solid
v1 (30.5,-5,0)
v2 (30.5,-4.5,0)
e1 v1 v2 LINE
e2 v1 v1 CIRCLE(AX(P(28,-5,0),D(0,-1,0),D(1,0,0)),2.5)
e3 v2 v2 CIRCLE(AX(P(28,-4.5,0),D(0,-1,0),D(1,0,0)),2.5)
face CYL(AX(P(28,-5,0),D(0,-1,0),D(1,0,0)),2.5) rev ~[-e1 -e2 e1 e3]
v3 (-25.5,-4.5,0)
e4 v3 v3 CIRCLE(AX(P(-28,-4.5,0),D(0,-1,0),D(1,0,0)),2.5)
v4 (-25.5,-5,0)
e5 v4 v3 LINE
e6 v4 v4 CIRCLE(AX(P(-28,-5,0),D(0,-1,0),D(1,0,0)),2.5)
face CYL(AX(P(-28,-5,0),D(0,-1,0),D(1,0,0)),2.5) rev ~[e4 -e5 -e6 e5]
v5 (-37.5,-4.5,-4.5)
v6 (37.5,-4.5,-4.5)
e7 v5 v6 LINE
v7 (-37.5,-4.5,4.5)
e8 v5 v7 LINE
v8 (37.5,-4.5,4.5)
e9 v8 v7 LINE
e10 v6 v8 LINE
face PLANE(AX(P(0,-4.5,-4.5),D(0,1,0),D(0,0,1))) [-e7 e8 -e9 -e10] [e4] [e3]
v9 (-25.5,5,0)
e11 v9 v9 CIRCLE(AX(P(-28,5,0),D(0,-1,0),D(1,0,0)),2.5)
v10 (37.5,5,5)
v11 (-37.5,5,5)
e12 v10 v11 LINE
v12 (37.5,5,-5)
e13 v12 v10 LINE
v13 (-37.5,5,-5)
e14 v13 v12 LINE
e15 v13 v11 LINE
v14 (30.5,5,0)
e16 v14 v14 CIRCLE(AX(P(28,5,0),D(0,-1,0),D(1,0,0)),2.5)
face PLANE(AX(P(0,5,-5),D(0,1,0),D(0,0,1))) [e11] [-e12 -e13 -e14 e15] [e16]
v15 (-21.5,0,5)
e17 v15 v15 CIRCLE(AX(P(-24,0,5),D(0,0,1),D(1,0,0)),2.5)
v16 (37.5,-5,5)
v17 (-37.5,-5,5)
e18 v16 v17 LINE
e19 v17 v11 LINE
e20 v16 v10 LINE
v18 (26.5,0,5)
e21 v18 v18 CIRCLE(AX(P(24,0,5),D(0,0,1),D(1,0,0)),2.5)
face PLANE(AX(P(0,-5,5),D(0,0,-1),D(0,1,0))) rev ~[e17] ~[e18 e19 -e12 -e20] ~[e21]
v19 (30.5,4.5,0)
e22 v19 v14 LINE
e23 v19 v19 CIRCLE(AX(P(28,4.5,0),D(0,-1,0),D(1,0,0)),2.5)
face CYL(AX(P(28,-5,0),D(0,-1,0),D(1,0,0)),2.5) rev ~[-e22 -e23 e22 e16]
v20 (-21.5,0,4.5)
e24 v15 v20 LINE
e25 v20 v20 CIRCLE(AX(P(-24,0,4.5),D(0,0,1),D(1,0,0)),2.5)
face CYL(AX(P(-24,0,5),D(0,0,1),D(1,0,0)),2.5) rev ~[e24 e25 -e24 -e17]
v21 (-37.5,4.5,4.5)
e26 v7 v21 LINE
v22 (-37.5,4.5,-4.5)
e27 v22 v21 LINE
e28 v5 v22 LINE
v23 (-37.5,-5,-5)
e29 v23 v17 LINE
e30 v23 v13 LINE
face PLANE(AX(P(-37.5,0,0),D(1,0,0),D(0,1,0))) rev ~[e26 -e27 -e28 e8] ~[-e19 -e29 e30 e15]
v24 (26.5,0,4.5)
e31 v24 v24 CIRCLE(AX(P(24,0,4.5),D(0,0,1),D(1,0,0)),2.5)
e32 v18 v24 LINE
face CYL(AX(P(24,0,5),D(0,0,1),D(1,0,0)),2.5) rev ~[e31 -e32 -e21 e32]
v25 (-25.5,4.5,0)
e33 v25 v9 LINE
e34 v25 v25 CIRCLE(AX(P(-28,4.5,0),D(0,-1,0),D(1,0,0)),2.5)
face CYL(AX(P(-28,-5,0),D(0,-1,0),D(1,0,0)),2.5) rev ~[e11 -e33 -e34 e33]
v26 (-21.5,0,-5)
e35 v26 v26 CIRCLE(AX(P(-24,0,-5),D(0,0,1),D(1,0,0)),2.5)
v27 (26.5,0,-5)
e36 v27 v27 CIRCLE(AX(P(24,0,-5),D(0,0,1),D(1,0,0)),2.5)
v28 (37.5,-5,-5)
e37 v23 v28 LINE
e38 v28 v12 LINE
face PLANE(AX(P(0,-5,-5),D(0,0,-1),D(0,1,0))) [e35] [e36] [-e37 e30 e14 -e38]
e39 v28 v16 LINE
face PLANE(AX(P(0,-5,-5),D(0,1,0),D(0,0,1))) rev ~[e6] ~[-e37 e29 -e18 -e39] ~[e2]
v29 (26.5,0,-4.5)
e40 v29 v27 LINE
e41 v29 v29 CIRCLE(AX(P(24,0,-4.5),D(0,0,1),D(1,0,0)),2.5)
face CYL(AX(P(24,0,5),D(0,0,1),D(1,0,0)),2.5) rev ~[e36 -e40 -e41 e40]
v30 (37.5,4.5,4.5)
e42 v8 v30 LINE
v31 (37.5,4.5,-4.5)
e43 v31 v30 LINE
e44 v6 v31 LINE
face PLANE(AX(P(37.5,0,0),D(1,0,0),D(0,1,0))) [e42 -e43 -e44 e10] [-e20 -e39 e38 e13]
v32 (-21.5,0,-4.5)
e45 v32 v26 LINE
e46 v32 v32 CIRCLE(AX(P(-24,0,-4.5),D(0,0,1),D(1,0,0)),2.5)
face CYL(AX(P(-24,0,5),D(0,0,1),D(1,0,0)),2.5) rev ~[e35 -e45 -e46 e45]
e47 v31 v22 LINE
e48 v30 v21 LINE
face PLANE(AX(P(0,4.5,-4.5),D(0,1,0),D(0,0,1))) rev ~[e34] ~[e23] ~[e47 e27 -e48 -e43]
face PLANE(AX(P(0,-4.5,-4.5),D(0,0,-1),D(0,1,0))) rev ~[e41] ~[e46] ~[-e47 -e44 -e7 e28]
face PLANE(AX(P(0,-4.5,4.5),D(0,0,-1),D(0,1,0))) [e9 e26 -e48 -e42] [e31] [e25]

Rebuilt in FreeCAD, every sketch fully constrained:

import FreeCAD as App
import Part
import Sketcher
from FreeCAD import Vector
Q = App.Units.Quantity

doc = App.newDocument("Part")
body = doc.addObject("PartDesign::Body", "Body")

sketch1 = body.newObject("Sketcher::SketchObject", "Sketch")
sketch1.AttachmentSupport = (doc.getObject("YZ_Plane"), [""])
sketch1.MapMode = "FlatFace"
sketch1.addGeometry([
    Part.LineSegment(Vector(-5, 5, 0), Vector(-5, -5, 0)),
    Part.LineSegment(Vector(-5, -5, 0), Vector(5, -5, 0)),
    Part.LineSegment(Vector(5, -5, 0), Vector(5, 5, 0)),
    Part.LineSegment(Vector(5, 5, 0), Vector(-5, 5, 0)),
    Part.LineSegment(Vector(4.5, -4.5, 0), Vector(-4.5, -4.5, 0)),
    Part.LineSegment(Vector(-4.5, -4.5, 0), Vector(-4.5, 4.5, 0)),
    Part.LineSegment(Vector(-4.5, 4.5, 0), Vector(4.5, 4.5, 0)),
    Part.LineSegment(Vector(4.5, 4.5, 0), Vector(4.5, -4.5, 0)),
], False)
sketch1.addConstraint([
    Sketcher.Constraint("Coincident", 0, 2, 1, 1),
    Sketcher.Constraint("Coincident", 1, 2, 2, 1),
    Sketcher.Constraint("Coincident", 2, 2, 3, 1),
    Sketcher.Constraint("Coincident", 3, 2, 0, 1),
    Sketcher.Constraint("Coincident", 4, 2, 5, 1),
    Sketcher.Constraint("Coincident", 5, 2, 6, 1),
    Sketcher.Constraint("Coincident", 6, 2, 7, 1),
    Sketcher.Constraint("Coincident", 7, 2, 4, 1),
    Sketcher.Constraint("Vertical", 0),
    Sketcher.Constraint("Horizontal", 1),
    Sketcher.Constraint("Vertical", 2),
    Sketcher.Constraint("Horizontal", 3),
    Sketcher.Constraint("Horizontal", 4),
    Sketcher.Constraint("Vertical", 5),
    Sketcher.Constraint("Horizontal", 6),
    Sketcher.Constraint("Vertical", 7),
    Sketcher.Constraint("Symmetric", 0, 2, 2, 2, -1, 1),
    Sketcher.Constraint("Symmetric", 4, 2, 6, 2, -1, 1),
    Sketcher.Constraint("Equal", 3, 0),
    Sketcher.Constraint("Equal", 6, 5),
    Sketcher.Constraint("DistanceX", 1, 1, 1, 2, Q("10 mm")),
    Sketcher.Constraint("DistanceX", 4, 2, 4, 1, Q("9 mm")),
])
pad1 = body.newObject("PartDesign::Pad", "Pad")
pad1.Profile = sketch1
pad1.Type = "TwoLengths"
pad1.Length = 37.5
pad1.Length2 = 37.5

sketch2 = body.newObject("Sketcher::SketchObject", "Sketch001")
sketch2.AttachmentSupport = (doc.getObject("XY_Plane"), [""])
sketch2.MapMode = "FlatFace"
sketch2.AttachmentOffset = App.Placement(Vector(0, 0, 5), App.Rotation())
sketch2.addGeometry([
    Part.Circle(Vector(-24, 0, 0), Vector(0, 0, 1), 2.5),
    Part.Circle(Vector(24, 0, 0), Vector(0, 0, 1), 2.5),
], False)
sketch2.addConstraint([
    Sketcher.Constraint("Equal", 0, 1),
    Sketcher.Constraint("Symmetric", 0, 3, 1, 3, -1, 1),
    Sketcher.Constraint("PointOnObject", 0, 3, -1),
    Sketcher.Constraint("Diameter", 0, Q("5 mm")),
    Sketcher.Constraint("DistanceX", 0, 3, -1, 1, Q("24 mm")),
])
pocket1 = body.newObject("PartDesign::Pocket", "Pocket")
pocket1.Profile = sketch2
pocket1.Length = 10

sketch3 = body.newObject("Sketcher::SketchObject", "Sketch002")
sketch3.AttachmentSupport = (doc.getObject("XZ_Plane"), [""])
sketch3.MapMode = "FlatFace"
sketch3.AttachmentOffset = App.Placement(Vector(0, 0, 5), App.Rotation())
sketch3.addGeometry([
    Part.Circle(Vector(-28, 0, 0), Vector(0, 0, 1), 2.5),
    Part.Circle(Vector(28, 0, 0), Vector(0, 0, 1), 2.5),
], False)
sketch3.addConstraint([
    Sketcher.Constraint("Equal", 0, 1),
    Sketcher.Constraint("Symmetric", 0, 3, 1, 3, -1, 1),
    Sketcher.Constraint("PointOnObject", 0, 3, -1),
    Sketcher.Constraint("Diameter", 0, Q("5 mm")),
    Sketcher.Constraint("DistanceX", 0, 3, -1, 1, Q("28 mm")),
])
pocket2 = body.newObject("PartDesign::Pocket", "Pocket001")
pocket2.Profile = sketch3
pocket2.Length = 10

doc.recompute()
